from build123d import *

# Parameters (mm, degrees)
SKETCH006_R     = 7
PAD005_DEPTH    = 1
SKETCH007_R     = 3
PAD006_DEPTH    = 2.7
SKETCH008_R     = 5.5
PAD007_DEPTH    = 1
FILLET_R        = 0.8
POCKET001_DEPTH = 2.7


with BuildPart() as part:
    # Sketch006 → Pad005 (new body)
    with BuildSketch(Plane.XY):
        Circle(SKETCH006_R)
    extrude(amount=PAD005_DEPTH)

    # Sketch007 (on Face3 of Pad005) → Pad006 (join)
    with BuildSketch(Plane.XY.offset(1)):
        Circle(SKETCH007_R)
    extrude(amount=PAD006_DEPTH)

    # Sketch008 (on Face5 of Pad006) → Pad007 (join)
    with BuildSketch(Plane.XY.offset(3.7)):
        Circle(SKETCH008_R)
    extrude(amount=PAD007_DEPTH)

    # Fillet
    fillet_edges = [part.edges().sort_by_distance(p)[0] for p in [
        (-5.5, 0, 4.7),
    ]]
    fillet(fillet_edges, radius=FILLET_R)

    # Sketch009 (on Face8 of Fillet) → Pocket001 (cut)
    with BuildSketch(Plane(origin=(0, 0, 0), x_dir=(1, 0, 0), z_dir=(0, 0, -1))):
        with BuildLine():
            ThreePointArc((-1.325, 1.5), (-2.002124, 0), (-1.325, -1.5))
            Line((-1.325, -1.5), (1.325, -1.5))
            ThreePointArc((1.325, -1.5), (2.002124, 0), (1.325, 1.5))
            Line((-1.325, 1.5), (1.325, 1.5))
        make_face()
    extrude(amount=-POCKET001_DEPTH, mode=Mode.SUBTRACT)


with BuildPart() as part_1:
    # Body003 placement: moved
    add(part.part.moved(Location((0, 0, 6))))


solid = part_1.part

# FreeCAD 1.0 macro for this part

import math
import FreeCAD as App
import Part
import Sketcher

V = App.Vector


def edges_at(feature, points):
    """Names of the edges that pass closest to the given points."""
    edges = feature.Shape.Edges
    near = lambda p: min(range(len(edges)), key=lambda i: edges[i].distToShape(Part.Vertex(*p))[0])
    return sorted({f"Edge{near(p) + 1}" for p in points})

doc = App.newDocument("Part")
body = doc.addObject("PartDesign::Body", "Body")

sketch1 = doc.addObject("Sketcher::SketchObject", "Sketch")
body.addObject(sketch1)
sketch1.AttachmentSupport = (doc.XY_Plane, [""])
sketch1.MapMode = "FlatFace"
sketch1.addGeometry(Part.Circle(V(0, 0, 0), V(0, 0, 1), 7), False)
sketch1.addConstraint([
    Sketcher.Constraint("Coincident", 0, 3, -1, 1),
    Sketcher.Constraint("Diameter", 0, 14.0),
])
pad1 = doc.addObject("PartDesign::Pad", "Pad")
body.addObject(pad1)
pad1.Profile = sketch1
pad1.Length = 1

sketch2 = doc.addObject("Sketcher::SketchObject", "Sketch001")
body.addObject(sketch2)
sketch2.AttachmentSupport = (doc.XY_Plane, [""])
sketch2.MapMode = "FlatFace"
sketch2.AttachmentOffset = App.Placement(V(0, 0, 1), App.Rotation())
sketch2.addGeometry(Part.Circle(V(0, 0, 0), V(0, 0, 1), 3), False)
sketch2.addConstraint([
    Sketcher.Constraint("Coincident", 0, 3, -1, 1),
    Sketcher.Constraint("Diameter", 0, 6.0),
])
pad2 = doc.addObject("PartDesign::Pad", "Pad001")
body.addObject(pad2)
pad2.Profile = sketch2
pad2.Length = 2.7

sketch3 = doc.addObject("Sketcher::SketchObject", "Sketch002")
body.addObject(sketch3)
sketch3.AttachmentSupport = (doc.XY_Plane, [""])
sketch3.MapMode = "FlatFace"
sketch3.AttachmentOffset = App.Placement(V(0, 0, 3.7), App.Rotation())
sketch3.addGeometry(Part.Circle(V(0, 0, 0), V(0, 0, 1), 6), False)
sketch3.addConstraint([
    Sketcher.Constraint("Coincident", 0, 3, -1, 1),
    Sketcher.Constraint("Diameter", 0, 11.0),
])
pad3 = doc.addObject("PartDesign::Pad", "Pad002")
body.addObject(pad3)
pad3.Profile = sketch3
pad3.Length = 1
doc.recompute()

fillet = doc.addObject("PartDesign::Fillet", "Fillet")
body.addObject(fillet)
fillet.Base = (pad3, edges_at(pad3, [(-5.5, 0, 4.7)]))
fillet.Radius = 0.8

sketch4 = doc.addObject("Sketcher::SketchObject", "Sketch003")
body.addObject(sketch4)
sketch4.AttachmentSupport = (doc.XY_Plane, [""])
sketch4.MapMode = "FlatFace"
sketch4.addGeometry([
    Part.ArcOfCircle(Part.Circle(V(-0.002123, 0, 0), V(0, 0, 1), 2.000001), math.radians(131.409644), math.radians(228.590356)),
    Part.LineSegment(V(-1.325, 1.5, 0), V(1.325, 1.5, 0)),
    Part.ArcOfCircle(Part.Circle(V(0.002123, 0, 0), V(0, 0, 1), 2.000001), math.radians(-48.590356), math.radians(48.590356)),
    Part.LineSegment(V(1.325, -1.5, 0), V(-1.325, -1.5, 0)),
], False)
sketch4.addConstraint([
    Sketcher.Constraint("Coincident", 0, 1, 1, 1),
    Sketcher.Constraint("Coincident", 1, 2, 2, 2),
    Sketcher.Constraint("Coincident", 2, 1, 3, 1),
    Sketcher.Constraint("Coincident", 3, 2, 0, 2),
    Sketcher.Constraint("Horizontal", 1),
    Sketcher.Constraint("Horizontal", 3),
    Sketcher.Constraint("Equal", 0, 2),
    Sketcher.Constraint("Symmetric", 0, 3, 2, 3, -1, 1),
    Sketcher.Constraint("Symmetric", 1, 2, 2, 1, -1),
    Sketcher.Constraint("Radius", 0, 2.000001),
    Sketcher.Constraint("DistanceY", 2, 1, 1, 2, 3.0),
    Sketcher.Constraint("DistanceX", 1, 1, 1, 2, 2.65),
])
pocket1 = doc.addObject("PartDesign::Pocket", "Pocket")
body.addObject(pocket1)
pocket1.Profile = sketch4
pocket1.Length = 2.7
pocket1.Reversed = True
body2 = doc.addObject("PartDesign::Body", "Body001")
doc.recompute()

body.Placement = App.Placement(V(0, 0, 6), App.Rotation(V(0, 0, 1), 0))
boolean = doc.addObject("PartDesign::Boolean", "Boolean")
body2.addObject(boolean)
boolean.Type = "Fuse"
boolean.addObjects([body])

doc.recompute()
